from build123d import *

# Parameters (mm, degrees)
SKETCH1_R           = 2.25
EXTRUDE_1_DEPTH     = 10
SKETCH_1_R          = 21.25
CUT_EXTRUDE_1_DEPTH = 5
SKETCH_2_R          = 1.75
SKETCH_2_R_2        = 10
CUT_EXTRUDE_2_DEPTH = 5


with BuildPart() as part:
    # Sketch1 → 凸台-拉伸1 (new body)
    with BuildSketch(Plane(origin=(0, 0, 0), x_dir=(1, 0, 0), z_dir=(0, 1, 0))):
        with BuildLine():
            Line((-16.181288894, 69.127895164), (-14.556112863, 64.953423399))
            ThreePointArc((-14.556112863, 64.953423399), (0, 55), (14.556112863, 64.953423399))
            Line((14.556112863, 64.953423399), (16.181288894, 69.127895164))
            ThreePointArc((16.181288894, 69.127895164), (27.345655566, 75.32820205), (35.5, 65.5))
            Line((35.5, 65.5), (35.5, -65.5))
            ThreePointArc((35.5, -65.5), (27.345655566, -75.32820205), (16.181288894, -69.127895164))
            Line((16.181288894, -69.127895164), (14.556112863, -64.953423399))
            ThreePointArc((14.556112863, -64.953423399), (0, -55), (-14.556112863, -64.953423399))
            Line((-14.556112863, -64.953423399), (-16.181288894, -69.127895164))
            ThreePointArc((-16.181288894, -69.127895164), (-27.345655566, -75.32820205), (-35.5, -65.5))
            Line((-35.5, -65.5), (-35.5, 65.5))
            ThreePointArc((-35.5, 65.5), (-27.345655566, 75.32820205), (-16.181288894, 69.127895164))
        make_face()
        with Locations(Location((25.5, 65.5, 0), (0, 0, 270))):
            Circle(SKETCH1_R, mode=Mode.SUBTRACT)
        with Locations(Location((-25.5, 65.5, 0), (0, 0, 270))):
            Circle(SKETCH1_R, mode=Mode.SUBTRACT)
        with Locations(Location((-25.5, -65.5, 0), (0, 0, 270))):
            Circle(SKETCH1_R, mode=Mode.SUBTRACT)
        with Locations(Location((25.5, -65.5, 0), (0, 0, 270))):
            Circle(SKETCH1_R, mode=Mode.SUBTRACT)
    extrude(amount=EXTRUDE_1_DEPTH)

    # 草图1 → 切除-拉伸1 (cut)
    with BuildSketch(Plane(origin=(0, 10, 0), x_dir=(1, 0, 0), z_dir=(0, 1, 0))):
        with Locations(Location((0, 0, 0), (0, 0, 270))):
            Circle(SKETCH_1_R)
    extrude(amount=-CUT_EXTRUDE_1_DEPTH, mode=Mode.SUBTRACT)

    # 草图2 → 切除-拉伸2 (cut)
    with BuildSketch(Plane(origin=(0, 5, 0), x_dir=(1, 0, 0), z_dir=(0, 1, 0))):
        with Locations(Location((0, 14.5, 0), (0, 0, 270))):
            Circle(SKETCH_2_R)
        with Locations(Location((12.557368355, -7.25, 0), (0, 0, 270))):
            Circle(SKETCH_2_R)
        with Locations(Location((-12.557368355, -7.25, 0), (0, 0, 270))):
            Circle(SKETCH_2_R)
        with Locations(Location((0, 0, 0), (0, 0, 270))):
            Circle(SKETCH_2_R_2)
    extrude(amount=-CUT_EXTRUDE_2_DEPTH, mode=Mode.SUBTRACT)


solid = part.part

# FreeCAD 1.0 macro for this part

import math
import FreeCAD as App
import Part
import Sketcher
from FreeCAD import Vector

doc = App.newDocument("Part")
body = doc.addObject("PartDesign::Body", "Body")

sketch1 = body.newObject("Sketcher::SketchObject", "Sketch")
sketch1.AttachmentSupport = (doc.getObject("XZ_Plane"), [""])
sketch1.MapMode = "FlatFace"
sketch1.addGeometry(Part.LineSegment(Vector(-14.6, -65, 0), Vector(-16.2, -69.1, 0)), False)
sketch1.addGeometry(Part.ArcOfCircle(Part.Circle(Vector(-25.5, -65.5, 0), Vector(0, 0, 1), 10), math.radians(180), math.radians(339)), False)
sketch1.addGeometry(Part.LineSegment(Vector(-35.5, -65.5, 0), Vector(-35.5, 65.5, 0)), False)
sketch1.addGeometry(Part.ArcOfCircle(Part.Circle(Vector(-25.5, 65.5, 0), Vector(0, 0, 1), 10), math.radians(21), math.radians(180)), False)
sketch1.addGeometry(Part.LineSegment(Vector(-16.2, 69.1, 0), Vector(-14.6, 65, 0)), False)
sketch1.addGeometry(Part.ArcOfCircle(Part.Circle(Vector(0, 70.6, 0), Vector(0, 0, 1), 15.6), math.radians(-159), math.radians(-21)), False)
sketch1.addGeometry(Part.LineSegment(Vector(14.6, 65, 0), Vector(16.2, 69.1, 0)), False)
sketch1.addGeometry(Part.ArcOfCircle(Part.Circle(Vector(25.5, 65.5, 0), Vector(0, 0, 1), 10), math.radians(0), math.radians(159)), False)
sketch1.addGeometry(Part.LineSegment(Vector(35.5, 65.5, 0), Vector(35.5, -65.5, 0)), False)
sketch1.addGeometry(Part.ArcOfCircle(Part.Circle(Vector(25.5, -65.5, 0), Vector(0, 0, 1), 10), math.radians(-159), math.radians(0)), False)
sketch1.addGeometry(Part.LineSegment(Vector(16.2, -69.1, 0), Vector(14.6, -65, 0)), False)
sketch1.addGeometry(Part.ArcOfCircle(Part.Circle(Vector(0, -70.6, 0), Vector(0, 0, 1), 15.6), math.radians(21), math.radians(159)), False)
sketch1.addGeometry(Part.Circle(Vector(25.5, 65.5, 0), Vector(0, 0, 1), 2.2), False)
sketch1.addGeometry(Part.Circle(Vector(-25.5, 65.5, 0), Vector(0, 0, 1), 2.2), False)
sketch1.addGeometry(Part.Circle(Vector(25.5, -65.5, 0), Vector(0, 0, 1), 2.2), False)
sketch1.addGeometry(Part.Circle(Vector(-25.5, -65.5, 0), Vector(0, 0, 1), 2.2), False)
sketch1.addConstraint(Sketcher.Constraint("Tangent", 0, 2, 1, 2))
sketch1.addConstraint(Sketcher.Constraint("Tangent", 1, 1, 2, 1))
sketch1.addConstraint(Sketcher.Constraint("Tangent", 2, 2, 3, 2))
sketch1.addConstraint(Sketcher.Constraint("Tangent", 3, 1, 4, 1))
sketch1.addConstraint(Sketcher.Constraint("Tangent", 4, 2, 5, 1))
sketch1.addConstraint(Sketcher.Constraint("Tangent", 5, 2, 6, 1))
sketch1.addConstraint(Sketcher.Constraint("Tangent", 6, 2, 7, 2))
sketch1.addConstraint(Sketcher.Constraint("Tangent", 7, 1, 8, 1))
sketch1.addConstraint(Sketcher.Constraint("Tangent", 8, 2, 9, 2))
sketch1.addConstraint(Sketcher.Constraint("Tangent", 9, 1, 10, 1))
sketch1.addConstraint(Sketcher.Constraint("Tangent", 10, 2, 11, 1))
sketch1.addConstraint(Sketcher.Constraint("Tangent", 11, 2, 0, 1))
sketch1.addConstraint(Sketcher.Constraint("Vertical", 2))
sketch1.addConstraint(Sketcher.Constraint("Vertical", 8))
sketch1.addConstraint(Sketcher.Constraint("Coincident", 12, 3, 7, 3))
sketch1.addConstraint(Sketcher.Constraint("Coincident", 13, 3, 3, 3))
sketch1.addConstraint(Sketcher.Constraint("Coincident", 14, 3, 9, 3))
sketch1.addConstraint(Sketcher.Constraint("Coincident", 15, 3, 1, 3))
sketch1.addConstraint(Sketcher.Constraint("Equal", 1, 3))
sketch1.addConstraint(Sketcher.Constraint("Equal", 3, 7))
sketch1.addConstraint(Sketcher.Constraint("Equal", 7, 9))
sketch1.addConstraint(Sketcher.Constraint("Equal", 5, 11))
sketch1.addConstraint(Sketcher.Constraint("Equal", 12, 13))
sketch1.addConstraint(Sketcher.Constraint("Equal", 13, 14))
sketch1.addConstraint(Sketcher.Constraint("Equal", 14, 15))
sketch1.addConstraint(Sketcher.Constraint("Symmetric", 1, 3, 7, 3, -1, 1))
sketch1.addConstraint(Sketcher.Constraint("Symmetric", 5, 3, 11, 3, -1, 1))
sketch1.addConstraint(Sketcher.Constraint("Symmetric", 4, 2, 5, 2, -2))
sketch1.addConstraint(Sketcher.Constraint("Parallel", 4, 10))
sketch1.addConstraint(Sketcher.Constraint("Radius", 1, 10.0))
sketch1.addConstraint(Sketcher.Constraint("Diameter", 12, 4.5))
sketch1.addConstraint(Sketcher.Constraint("DistanceY", 2, 1, 2, 2, 131.0))
sketch1.addConstraint(Sketcher.Constraint("DistanceX", 3, 3, 7, 3, 51.0))
sketch1.addConstraint(Sketcher.Constraint("Radius", 5, 15.620307))
sketch1.addConstraint(Sketcher.Constraint("DistanceX", 3, 1, 5, 2, 30.737402))
pad1 = body.newObject("PartDesign::Pad", "Pad")
pad1.Profile = sketch1
pad1.Length = 10
pad1.Reversed = True

sketch2 = body.newObject("Sketcher::SketchObject", "Sketch001")
sketch2.AttachmentSupport = (doc.getObject("XZ_Plane"), [""])
sketch2.MapMode = "FlatFace"
sketch2.AttachmentOffset = App.Placement(Vector(0, 0, -10), App.Rotation())
sketch2.addGeometry(Part.Circle(Vector(0, 0, 0), Vector(0, 0, 1), 21), False)
sketch2.addConstraint(Sketcher.Constraint("Coincident", 0, 3, -1, 1))
sketch2.addConstraint(Sketcher.Constraint("Diameter", 0, 42.5))
pocket1 = body.newObject("PartDesign::Pocket", "Pocket")
pocket1.Profile = sketch2
pocket1.Length = 5
pocket1.Reversed = True

sketch3 = body.newObject("Sketcher::SketchObject", "Sketch002")
sketch3.AttachmentSupport = (doc.getObject("XZ_Plane"), [""])
sketch3.MapMode = "FlatFace"
sketch3.AttachmentOffset = App.Placement(Vector(0, 0, -5), App.Rotation())
sketch3.addGeometry(Part.Circle(Vector(0, -14.5, 0), Vector(0, 0, 1), 1.8), False)
sketch3.addGeometry(Part.Circle(Vector(12.6, 7.2, 0), Vector(0, 0, 1), 1.8), False)
sketch3.addGeometry(Part.Circle(Vector(-12.6, 7.2, 0), Vector(0, 0, 1), 1.8), False)
sketch3.addGeometry(Part.Circle(Vector(0, 0, 0), Vector(0, 0, 1), 10), False)
sketch3.addConstraint(Sketcher.Constraint("Coincident", 3, 3, -1, 1))
sketch3.addConstraint(Sketcher.Constraint("Equal", 0, 1))
sketch3.addConstraint(Sketcher.Constraint("Equal", 1, 2))
sketch3.addConstraint(Sketcher.Constraint("Symmetric", 1, 3, 2, 3, -2))
sketch3.addConstraint(Sketcher.Constraint("PointOnObject", 0, 3, -2))
sketch3.addConstraint(Sketcher.Constraint("Diameter", 3, 20.0))
sketch3.addConstraint(Sketcher.Constraint("Diameter", 0, 3.5))
sketch3.addConstraint(Sketcher.Constraint("DistanceY", 0, 3, -1, 1, 14.5))
sketch3.addConstraint(Sketcher.Constraint("DistanceY", -1, 1, 1, 3, 7.25))
sketch3.addConstraint(Sketcher.Constraint("DistanceX", -1, 1, 1, 3, 12.557368))
pocket2 = body.newObject("PartDesign::Pocket", "Pocket001")
pocket2.Profile = sketch3
pocket2.Length = 5
pocket2.Reversed = True

doc.recompute()
